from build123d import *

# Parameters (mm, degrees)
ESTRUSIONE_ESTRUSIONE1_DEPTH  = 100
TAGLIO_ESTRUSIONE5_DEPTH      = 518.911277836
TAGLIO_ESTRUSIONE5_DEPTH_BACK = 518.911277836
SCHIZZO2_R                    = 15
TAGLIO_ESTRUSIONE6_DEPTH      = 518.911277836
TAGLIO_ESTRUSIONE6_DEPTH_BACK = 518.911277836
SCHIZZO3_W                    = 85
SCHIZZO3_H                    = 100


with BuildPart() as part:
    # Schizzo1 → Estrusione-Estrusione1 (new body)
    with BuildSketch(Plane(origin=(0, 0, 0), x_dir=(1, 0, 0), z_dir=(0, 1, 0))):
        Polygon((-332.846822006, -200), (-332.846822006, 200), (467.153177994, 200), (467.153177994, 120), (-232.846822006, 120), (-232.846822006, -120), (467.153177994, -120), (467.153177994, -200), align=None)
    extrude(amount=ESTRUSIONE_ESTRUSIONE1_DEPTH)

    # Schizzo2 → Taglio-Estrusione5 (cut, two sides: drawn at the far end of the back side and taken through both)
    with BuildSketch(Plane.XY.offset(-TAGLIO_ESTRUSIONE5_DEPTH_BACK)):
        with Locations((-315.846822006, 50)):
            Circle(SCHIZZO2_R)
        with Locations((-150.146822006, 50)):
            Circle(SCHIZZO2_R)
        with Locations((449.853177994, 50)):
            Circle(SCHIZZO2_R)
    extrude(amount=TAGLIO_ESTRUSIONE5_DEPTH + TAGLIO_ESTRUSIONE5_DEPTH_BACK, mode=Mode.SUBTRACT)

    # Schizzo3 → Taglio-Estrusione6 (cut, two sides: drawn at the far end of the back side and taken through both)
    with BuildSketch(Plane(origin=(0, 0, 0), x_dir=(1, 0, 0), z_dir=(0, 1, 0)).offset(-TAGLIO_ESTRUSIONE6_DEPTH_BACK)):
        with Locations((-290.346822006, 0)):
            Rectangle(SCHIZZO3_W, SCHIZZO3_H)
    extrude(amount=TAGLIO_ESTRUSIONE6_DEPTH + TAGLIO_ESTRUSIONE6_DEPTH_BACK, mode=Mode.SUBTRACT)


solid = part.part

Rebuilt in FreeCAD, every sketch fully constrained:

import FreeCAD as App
import Part
import Sketcher
from FreeCAD import Vector
Q = App.Units.Quantity

doc = App.newDocument("Part")
body = doc.addObject("PartDesign::Body", "Body")

# Sketch on XZ plane
sketch1 = body.newObject("Sketcher::SketchObject", "Sketch")
sketch1.AttachmentSupport = (doc.getObject("XZ_Plane"), [""])
sketch1.MapMode = "FlatFace"
sketch1.addGeometry([
    Part.LineSegment(Vector(-333, -200, 0), Vector(-333, 200, 0)),  # 0
    Part.LineSegment(Vector(-333, 200, 0), Vector(467, 200, 0)),  # 1
    Part.LineSegment(Vector(467, 200, 0), Vector(467, 120, 0)),  # 2
    Part.LineSegment(Vector(467, 120, 0), Vector(-233, 120, 0)),  # 3
    Part.LineSegment(Vector(-233, 120, 0), Vector(-233, -120, 0)),  # 4
    Part.LineSegment(Vector(-233, -120, 0), Vector(467, -120, 0)),  # 5
    Part.LineSegment(Vector(467, -120, 0), Vector(467, -200, 0)),  # 6
    Part.LineSegment(Vector(467, -200, 0), Vector(-333, -200, 0)),  # 7
], False)
sketch1.addConstraint([
    Sketcher.Constraint("Coincident", 0, 2, 1, 1),
    Sketcher.Constraint("Coincident", 1, 2, 2, 1),
    Sketcher.Constraint("Coincident", 2, 2, 3, 1),
    Sketcher.Constraint("Coincident", 3, 2, 4, 1),
    Sketcher.Constraint("Coincident", 4, 2, 5, 1),
    Sketcher.Constraint("Coincident", 5, 2, 6, 1),
    Sketcher.Constraint("Coincident", 6, 2, 7, 1),
    Sketcher.Constraint("Coincident", 7, 2, 0, 1),
    Sketcher.Constraint("Vertical", 0),
    Sketcher.Constraint("Horizontal", 1),
    Sketcher.Constraint("Vertical", 2),
    Sketcher.Constraint("Horizontal", 3),
    Sketcher.Constraint("Vertical", 4),
    Sketcher.Constraint("Horizontal", 5),
    Sketcher.Constraint("Vertical", 6),
    Sketcher.Constraint("Horizontal", 7),
    Sketcher.Constraint("Symmetric", 2, 2, 5, 2, -1),
    Sketcher.Constraint("Equal", 2, 6),
    Sketcher.Constraint("DistanceX", 1, 1, 1, 2, Q("800 mm")),
    Sketcher.Constraint("DistanceX", 3, 2, 3, 1, Q("700 mm")),
    Sketcher.Constraint("DistanceY", 0, 1, 0, 2, Q("400 mm")),
    Sketcher.Constraint("DistanceY", 2, 2, 2, 1, Q("80 mm")),
    Sketcher.Constraint("DistanceX", 0, 2, -1, 1, Q("332.846822 mm")),
])
pad1 = body.newObject("PartDesign::Pad", "Pad")
pad1.Profile = sketch1
pad1.Length = 100
pad1.Reversed = True

# Sketch on XY plane
sketch2 = body.newObject("Sketcher::SketchObject", "Sketch001")
sketch2.AttachmentSupport = (doc.getObject("XY_Plane"), [""])
sketch2.MapMode = "FlatFace"
sketch2.addGeometry([
    Part.Circle(Vector(-316, 50, 0), Vector(0, 0, 1), 15),
    Part.Circle(Vector(-150, 50, 0), Vector(0, 0, 1), 15),
    Part.Circle(Vector(450, 50, 0), Vector(0, 0, 1), 15),
], False)
sketch2.addConstraint([
    Sketcher.Constraint("Equal", 0, 1),
    Sketcher.Constraint("Equal", 1, 2),
    Sketcher.Constraint("Horizontal", 0, 3, 1, 3),
    Sketcher.Constraint("Horizontal", 1, 3, 2, 3),
    Sketcher.Constraint("Diameter", 0, Q("30 mm")),
    Sketcher.Constraint("DistanceY", -1, 1, 0, 3, Q("50 mm")),
    Sketcher.Constraint("DistanceX", 1, 3, 2, 3, Q("600 mm")),
    Sketcher.Constraint("DistanceX", 0, 3, 1, 3, Q("165.7 mm")),
    Sketcher.Constraint("DistanceX", 0, 3, -1, 1, Q("315.846822 mm")),
])
pocket1 = body.newObject("PartDesign::Pocket", "Pocket")
pocket1.Profile = sketch2
pocket1.Type = "ThroughAll"
pocket1.Midplane = True

# Sketch on XZ plane
sketch3 = body.newObject("Sketcher::SketchObject", "Sketch002")
sketch3.AttachmentSupport = (doc.getObject("XZ_Plane"), [""])
sketch3.MapMode = "FlatFace"
sketch3.addGeometry([
    Part.LineSegment(Vector(-333, -50, 0), Vector(-333, 50, 0)),
    Part.LineSegment(Vector(-333, 50, 0), Vector(-248, 50, 0)),
    Part.LineSegment(Vector(-248, 50, 0), Vector(-248, -50, 0)),
    Part.LineSegment(Vector(-248, -50, 0), Vector(-333, -50, 0)),
], False)
sketch3.addConstraint([
    Sketcher.Constraint("Coincident", 0, 2, 1, 1),
    Sketcher.Constraint("Coincident", 1, 2, 2, 1),
    Sketcher.Constraint("Coincident", 2, 2, 3, 1),
    Sketcher.Constraint("Coincident", 3, 2, 0, 1),
    Sketcher.Constraint("Vertical", 0),
    Sketcher.Constraint("Horizontal", 1),
    Sketcher.Constraint("Vertical", 2),
    Sketcher.Constraint("Horizontal", 3),
    Sketcher.Constraint("DistanceX", 1, 1, 1, 2, Q("85 mm")),
    Sketcher.Constraint("DistanceY", 0, 1, 0, 2, Q("100 mm")),
    Sketcher.Constraint("DistanceY", -1, 1, 0, 2, Q("50 mm")),
    Sketcher.Constraint("DistanceX", 0, 2, -1, 1, Q("332.846822 mm")),
])
pocket2 = body.newObject("PartDesign::Pocket", "Pocket001")
pocket2.Profile = sketch3
pocket2.Type = "ThroughAll"
pocket2.Midplane = True

doc.recompute()
